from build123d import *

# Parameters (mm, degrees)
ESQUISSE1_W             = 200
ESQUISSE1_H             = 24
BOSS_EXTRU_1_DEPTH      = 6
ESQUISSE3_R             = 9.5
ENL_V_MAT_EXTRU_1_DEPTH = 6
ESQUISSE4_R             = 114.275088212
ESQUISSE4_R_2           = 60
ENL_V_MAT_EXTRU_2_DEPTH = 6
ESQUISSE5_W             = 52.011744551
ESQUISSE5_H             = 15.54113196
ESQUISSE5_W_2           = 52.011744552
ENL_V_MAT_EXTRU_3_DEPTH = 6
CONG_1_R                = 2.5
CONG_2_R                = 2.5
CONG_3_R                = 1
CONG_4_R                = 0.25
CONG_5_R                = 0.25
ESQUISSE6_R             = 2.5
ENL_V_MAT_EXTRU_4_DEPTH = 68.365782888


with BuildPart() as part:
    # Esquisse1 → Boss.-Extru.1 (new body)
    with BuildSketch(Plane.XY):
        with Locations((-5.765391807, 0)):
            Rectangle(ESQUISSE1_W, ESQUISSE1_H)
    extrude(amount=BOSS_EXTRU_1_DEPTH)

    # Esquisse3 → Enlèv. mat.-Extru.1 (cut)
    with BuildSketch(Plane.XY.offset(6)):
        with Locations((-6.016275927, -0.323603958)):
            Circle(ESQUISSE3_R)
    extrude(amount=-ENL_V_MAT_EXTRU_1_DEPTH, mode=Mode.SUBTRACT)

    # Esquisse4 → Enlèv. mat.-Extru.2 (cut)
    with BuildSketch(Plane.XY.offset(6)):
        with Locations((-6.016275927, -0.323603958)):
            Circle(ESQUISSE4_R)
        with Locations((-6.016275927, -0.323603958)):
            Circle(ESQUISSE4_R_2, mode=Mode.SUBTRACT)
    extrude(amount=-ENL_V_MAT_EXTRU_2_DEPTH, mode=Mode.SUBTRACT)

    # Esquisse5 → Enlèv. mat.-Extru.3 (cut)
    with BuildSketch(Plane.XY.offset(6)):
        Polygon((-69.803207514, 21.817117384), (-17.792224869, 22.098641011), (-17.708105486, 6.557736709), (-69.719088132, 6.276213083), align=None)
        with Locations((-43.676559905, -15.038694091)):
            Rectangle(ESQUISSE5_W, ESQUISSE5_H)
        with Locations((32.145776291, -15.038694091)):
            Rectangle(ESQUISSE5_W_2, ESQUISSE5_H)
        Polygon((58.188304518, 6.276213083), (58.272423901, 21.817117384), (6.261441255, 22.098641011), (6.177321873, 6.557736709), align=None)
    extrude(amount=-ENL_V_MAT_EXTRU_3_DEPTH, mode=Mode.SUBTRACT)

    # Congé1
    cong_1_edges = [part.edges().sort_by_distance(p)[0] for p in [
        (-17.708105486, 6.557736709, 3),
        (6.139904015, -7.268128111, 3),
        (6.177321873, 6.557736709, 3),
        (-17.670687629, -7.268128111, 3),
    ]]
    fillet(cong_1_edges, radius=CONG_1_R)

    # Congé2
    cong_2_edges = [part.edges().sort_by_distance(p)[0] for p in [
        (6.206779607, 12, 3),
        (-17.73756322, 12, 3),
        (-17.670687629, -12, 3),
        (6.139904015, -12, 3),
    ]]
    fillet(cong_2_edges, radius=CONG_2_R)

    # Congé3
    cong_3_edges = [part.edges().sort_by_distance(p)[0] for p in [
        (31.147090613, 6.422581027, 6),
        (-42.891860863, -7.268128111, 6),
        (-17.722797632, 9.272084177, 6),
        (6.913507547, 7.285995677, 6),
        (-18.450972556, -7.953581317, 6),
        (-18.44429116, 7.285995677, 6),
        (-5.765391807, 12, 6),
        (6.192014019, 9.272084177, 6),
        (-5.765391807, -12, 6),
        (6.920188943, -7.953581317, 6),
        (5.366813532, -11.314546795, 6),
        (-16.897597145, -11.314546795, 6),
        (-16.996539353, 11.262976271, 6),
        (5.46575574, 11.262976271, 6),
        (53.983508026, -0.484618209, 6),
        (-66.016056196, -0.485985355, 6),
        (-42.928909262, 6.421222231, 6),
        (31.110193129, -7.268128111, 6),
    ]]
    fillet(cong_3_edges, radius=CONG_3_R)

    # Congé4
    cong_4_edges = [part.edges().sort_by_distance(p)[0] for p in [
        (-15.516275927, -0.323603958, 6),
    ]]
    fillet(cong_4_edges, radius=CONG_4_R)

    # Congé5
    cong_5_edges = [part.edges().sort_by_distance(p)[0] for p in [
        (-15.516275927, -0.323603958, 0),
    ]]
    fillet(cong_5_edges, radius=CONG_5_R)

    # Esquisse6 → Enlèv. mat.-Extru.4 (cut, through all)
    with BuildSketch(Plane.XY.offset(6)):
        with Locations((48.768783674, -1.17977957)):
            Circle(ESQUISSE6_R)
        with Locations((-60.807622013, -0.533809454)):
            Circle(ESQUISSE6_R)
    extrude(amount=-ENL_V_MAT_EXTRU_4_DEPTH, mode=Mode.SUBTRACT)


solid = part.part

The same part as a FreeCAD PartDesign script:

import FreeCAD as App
import Part
import Sketcher
from FreeCAD import Vector


def edges_at(feature, points):
    """Names of the edges that pass closest to the given points."""
    edges = feature.Shape.Edges
    near = lambda p: min(range(len(edges)), key=lambda i: edges[i].distToShape(Part.Vertex(*p))[0])
    return sorted({f"Edge{near(p) + 1}" for p in points})

doc = App.newDocument("Part")
body = doc.addObject("PartDesign::Body", "Body")

sketch1 = body.newObject("Sketcher::SketchObject", "Sketch")
sketch1.AttachmentSupport = (doc.getObject("XY_Plane"), [""])
sketch1.MapMode = "FlatFace"
sketch1.addGeometry(Part.LineSegment(Vector(-105.765392, 12, 0), Vector(-105.765392, -12, 0)), False)
sketch1.addGeometry(Part.LineSegment(Vector(-105.765392, -12, 0), Vector(94.234608, -12, 0)), False)
sketch1.addGeometry(Part.LineSegment(Vector(94.234608, -12, 0), Vector(94.234608, 12, 0)), False)
sketch1.addGeometry(Part.LineSegment(Vector(94.234608, 12, 0), Vector(-105.765392, 12, 0)), False)
sketch1.addConstraint(Sketcher.Constraint("Coincident", 0, 2, 1, 1))
sketch1.addConstraint(Sketcher.Constraint("Coincident", 1, 2, 2, 1))
sketch1.addConstraint(Sketcher.Constraint("Coincident", 2, 2, 3, 1))
sketch1.addConstraint(Sketcher.Constraint("Coincident", 3, 2, 0, 1))
sketch1.addConstraint(Sketcher.Constraint("Vertical", 0))
sketch1.addConstraint(Sketcher.Constraint("Horizontal", 1))
sketch1.addConstraint(Sketcher.Constraint("Vertical", 2))
sketch1.addConstraint(Sketcher.Constraint("Horizontal", 3))
sketch1.addConstraint(Sketcher.Constraint("DistanceX", 1, 1, 1, 2, 200.0))
sketch1.addConstraint(Sketcher.Constraint("DistanceY", 0, 2, 0, 1, 24.0))
sketch1.addConstraint(Sketcher.Constraint("DistanceY", 0, 2, -1, 1, 12.0))
sketch1.addConstraint(Sketcher.Constraint("DistanceX", 0, 2, -1, 1, 105.765392))
pad1 = body.newObject("PartDesign::Pad", "Pad")
pad1.Profile = sketch1
pad1.Length = 6

sketch2 = body.newObject("Sketcher::SketchObject", "Sketch001")
sketch2.AttachmentSupport = (doc.getObject("XY_Plane"), [""])
sketch2.MapMode = "FlatFace"
sketch2.AttachmentOffset = App.Placement(Vector(0, 0, 6), App.Rotation())
sketch2.addGeometry(Part.Circle(Vector(-6.016276, -0.323604, 0), Vector(0, 0, 1), 9.5), False)
sketch2.addConstraint(Sketcher.Constraint("Diameter", 0, 19.0))
sketch2.addConstraint(Sketcher.Constraint("DistanceX", 0, 3, -1, 1, 6.016276))
sketch2.addConstraint(Sketcher.Constraint("DistanceY", 0, 3, -1, 1, 0.323604))
pocket1 = body.newObject("PartDesign::Pocket", "Pocket")
pocket1.Profile = sketch2
pocket1.Length = 6

sketch3 = body.newObject("Sketcher::SketchObject", "Sketch002")
sketch3.AttachmentSupport = (doc.getObject("XY_Plane"), [""])
sketch3.MapMode = "FlatFace"
sketch3.AttachmentOffset = App.Placement(Vector(0, 0, 6), App.Rotation())
sketch3.addGeometry(Part.Circle(Vector(-6.016276, -0.323604, 0), Vector(0, 0, 1), 114.275088), False)
sketch3.addGeometry(Part.Circle(Vector(-6.016276, -0.323604, 0), Vector(0, 0, 1), 60), False)
sketch3.addConstraint(Sketcher.Constraint("Coincident", 1, 3, 0, 3))
sketch3.addConstraint(Sketcher.Constraint("Diameter", 1, 120.0))
sketch3.addConstraint(Sketcher.Constraint("Diameter", 0, 228.550176))
sketch3.addConstraint(Sketcher.Constraint("DistanceX", 0, 3, -1, 1, 6.016276))
sketch3.addConstraint(Sketcher.Constraint("DistanceY", 0, 3, -1, 1, 0.323604))
pocket2 = body.newObject("PartDesign::Pocket", "Pocket001")
pocket2.Profile = sketch3
pocket2.Length = 6

sketch4 = body.newObject("Sketcher::SketchObject", "Sketch003")
sketch4.AttachmentSupport = (doc.getObject("XY_Plane"), [""])
sketch4.MapMode = "FlatFace"
sketch4.AttachmentOffset = App.Placement(Vector(0, 0, 6), App.Rotation())
sketch4.addGeometry(Part.LineSegment(Vector(-17.792225, 22.098641, 0), Vector(-69.803208, 21.817117, 0)), False)
sketch4.addGeometry(Part.LineSegment(Vector(-69.803208, 21.817117, 0), Vector(-69.719088, 6.276213, 0)), False)
sketch4.addGeometry(Part.LineSegment(Vector(-69.719088, 6.276213, 0), Vector(-17.708105, 6.557737, 0)), False)
sketch4.addGeometry(Part.LineSegment(Vector(-17.708105, 6.557737, 0), Vector(-17.792225, 22.098641, 0)), False)
sketch4.addGeometry(Part.LineSegment(Vector(-69.682432, -7.268128, 0), Vector(-69.682432, -22.80926, 0)), False)
sketch4.addGeometry(Part.LineSegment(Vector(-69.682432, -22.80926, 0), Vector(-17.670688, -22.80926, 0)), False)
sketch4.addGeometry(Part.LineSegment(Vector(-17.670688, -22.80926, 0), Vector(-17.670688, -7.268128, 0)), False)
sketch4.addGeometry(Part.LineSegment(Vector(-17.670688, -7.268128, 0), Vector(-69.682432, -7.268128, 0)), False)
sketch4.addGeometry(Part.LineSegment(Vector(6.139904, -7.268128, 0), Vector(6.139904, -22.80926, 0)), False)
sketch4.addGeometry(Part.LineSegment(Vector(6.139904, -22.80926, 0), Vector(58.151649, -22.80926, 0)), False)
sketch4.addGeometry(Part.LineSegment(Vector(58.151649, -22.80926, 0), Vector(58.151649, -7.268128, 0)), False)
sketch4.addGeometry(Part.LineSegment(Vector(58.151649, -7.268128, 0), Vector(6.139904, -7.268128, 0)), False)
sketch4.addGeometry(Part.LineSegment(Vector(58.188305, 6.276213, 0), Vector(58.272424, 21.817117, 0)), False)
sketch4.addGeometry(Part.LineSegment(Vector(58.272424, 21.817117, 0), Vector(6.261441, 22.098641, 0)), False)
sketch4.addGeometry(Part.LineSegment(Vector(6.261441, 22.098641, 0), Vector(6.177322, 6.557737, 0)), False)
sketch4.addGeometry(Part.LineSegment(Vector(6.177322, 6.557737, 0), Vector(58.188305, 6.276213, 0)), False)
sketch4.addConstraint(Sketcher.Constraint("Coincident", 0, 2, 1, 1))
sketch4.addConstraint(Sketcher.Constraint("Coincident", 1, 2, 2, 1))
sketch4.addConstraint(Sketcher.Constraint("Coincident", 2, 2, 3, 1))
sketch4.addConstraint(Sketcher.Constraint("Coincident", 3, 2, 0, 1))
sketch4.addConstraint(Sketcher.Constraint("Coincident", 4, 2, 5, 1))
sketch4.addConstraint(Sketcher.Constraint("Coincident", 5, 2, 6, 1))
sketch4.addConstraint(Sketcher.Constraint("Coincident", 6, 2, 7, 1))
sketch4.addConstraint(Sketcher.Constraint("Coincident", 7, 2, 4, 1))
sketch4.addConstraint(Sketcher.Constraint("Coincident", 8, 2, 9, 1))
sketch4.addConstraint(Sketcher.Constraint("Coincident", 9, 2, 10, 1))
sketch4.addConstraint(Sketcher.Constraint("Coincident", 10, 2, 11, 1))
sketch4.addConstraint(Sketcher.Constraint("Coincident", 11, 2, 8, 1))
sketch4.addConstraint(Sketcher.Constraint("Coincident", 12, 2, 13, 1))
sketch4.addConstraint(Sketcher.Constraint("Coincident", 13, 2, 14, 1))
sketch4.addConstraint(Sketcher.Constraint("Coincident", 14, 2, 15, 1))
sketch4.addConstraint(Sketcher.Constraint("Coincident", 15, 2, 12, 1))
sketch4.addConstraint(Sketcher.Constraint("Vertical", 4))
sketch4.addConstraint(Sketcher.Constraint("Horizontal", 5))
sketch4.addConstraint(Sketcher.Constraint("Vertical", 6))
sketch4.addConstraint(Sketcher.Constraint("Horizontal", 7))
sketch4.addConstraint(Sketcher.Constraint("Vertical", 8))
sketch4.addConstraint(Sketcher.Constraint("Horizontal", 9))
sketch4.addConstraint(Sketcher.Constraint("Vertical", 10))
sketch4.addConstraint(Sketcher.Constraint("Horizontal", 11))
sketch4.addConstraint(Sketcher.Constraint("Perpendicular", 0, 1))
sketch4.addConstraint(Sketcher.Constraint("Perpendicular", 1, 2))
sketch4.addConstraint(Sketcher.Constraint("Perpendicular", 2, 3))
sketch4.addConstraint(Sketcher.Constraint("Perpendicular", 12, 13))
sketch4.addConstraint(Sketcher.Constraint("Perpendicular", 13, 14))
sketch4.addConstraint(Sketcher.Constraint("Perpendicular", 14, 15))
sketch4.addConstraint(Sketcher.Constraint("Horizontal", 5, 2, 8, 2))
sketch4.addConstraint(Sketcher.Constraint("Horizontal", 7, 2, 10, 2))
sketch4.addConstraint(Sketcher.Constraint("Horizontal", 0, 2, 12, 2))
sketch4.addConstraint(Sketcher.Constraint("Horizontal", 3, 2, 13, 2))
sketch4.addConstraint(Sketcher.Constraint("Horizontal", 2, 2, 14, 2))
sketch4.addConstraint(Sketcher.Constraint("Equal", 7, 9))
sketch4.addConstraint(Sketcher.Constraint("Equal", 2, 13))
sketch4.addConstraint(Sketcher.Constraint("DistanceY", 4, 2, 4, 1, 15.541132))
sketch4.addConstraint(Sketcher.Constraint("DistanceY", 4, 2, 3, 2, 44.907901))
sketch4.addConstraint(Sketcher.Constraint("DistanceX", 1, 2, 5, 2, 52.048401))
sketch4.addConstraint(Sketcher.Constraint("DistanceX", 11, 2, 15, 2, 52.048401))
sketch4.addConstraint(Sketcher.Constraint("Distance", 1, 15.541132))
sketch4.addConstraint(Sketcher.Constraint("DistanceX", 5, 1, 5, 2, 52.011745))
sketch4.addConstraint(Sketcher.Constraint("DistanceX", 1, 2, -1, 1, 69.719088))
sketch4.addConstraint(Sketcher.Constraint("DistanceY", -1, 1, 3, 2, 22.098641))
sketch4.addConstraint(Sketcher.Constraint("DistanceX", -1, 1, 9, 2, 58.151649))
sketch4.addConstraint(Sketcher.Constraint("DistanceX", -1, 1, 13, 2, 6.261441))
sketch4.addConstraint(Sketcher.Constraint("DistanceX", -1, 1, 14, 2, 6.177322))
pocket3 = body.newObject("PartDesign::Pocket", "Pocket002")
pocket3.Profile = sketch4
pocket3.Length = 6
doc.recompute()

fillet = body.newObject("PartDesign::Fillet", "Fillet")
fillet.Base = (pocket3, edges_at(pocket3, [
    (-17.708, 6.558, 3),
    (6.14, -7.268, 3),
    (6.177, 6.558, 3),
    (-17.671, -7.268, 3),
]))
fillet.Radius = 2.5
doc.recompute()

fillet2 = body.newObject("PartDesign::Fillet", "Fillet001")
fillet2.Base = (fillet, edges_at(fillet, [
    (6.207, 12, 3),
    (-17.738, 12, 3),
    (-17.671, -12, 3),
    (6.14, -12, 3),
]))
fillet2.Radius = 2.5
doc.recompute()

fillet3 = body.newObject("PartDesign::Fillet", "Fillet002")
fillet3.Base = (fillet2, edges_at(fillet2, [
    (31.147, 6.423, 6),
    (-42.892, -7.268, 6),
    (-17.723, 9.272, 6),
    (6.914, 7.286, 6),
    (-18.451, -7.954, 6),
    (-18.444, 7.286, 6),
    (-5.765, 12, 6),
    (6.192, 9.272, 6),
    (-5.765, -12, 6),
    (6.92, -7.954, 6),
    (5.367, -11.315, 6),
    (-16.898, -11.315, 6),
    (-16.997, 11.263, 6),
    (5.466, 11.263, 6),
    (53.984, -0.485, 6),
    (-66.016, -0.486, 6),
    (-42.929, 6.421, 6),
    (31.11, -7.268, 6),
]))
fillet3.Radius = 1
doc.recompute()

fillet4 = body.newObject("PartDesign::Fillet", "Fillet003")
fillet4.Base = (fillet3, edges_at(fillet3, [(-15.516, -0.324, 6)]))
fillet4.Radius = 0.25
doc.recompute()

fillet5 = body.newObject("PartDesign::Fillet", "Fillet004")
fillet5.Base = (fillet4, edges_at(fillet4, [(-15.516, -0.324, 0)]))
fillet5.Radius = 0.25

sketch5 = body.newObject("Sketcher::SketchObject", "Sketch004")
sketch5.AttachmentSupport = (doc.getObject("XY_Plane"), [""])
sketch5.MapMode = "FlatFace"
sketch5.AttachmentOffset = App.Placement(Vector(0, 0, 6), App.Rotation())
sketch5.addGeometry(Part.Circle(Vector(48.768784, -1.17978, 0), Vector(0, 0, 1), 2.5), False)
sketch5.addGeometry(Part.Circle(Vector(-60.807622, -0.533809, 0), Vector(0, 0, 1), 2.5), False)
sketch5.addConstraint(Sketcher.Constraint("Equal", 0, 1))
sketch5.addConstraint(Sketcher.Constraint("Diameter", 0, 5.0))
sketch5.addConstraint(Sketcher.Constraint("DistanceY", 0, 3, -1, 1, 1.17978))
sketch5.addConstraint(Sketcher.Constraint("DistanceY", 1, 3, -1, 1, 0.533809))
sketch5.addConstraint(Sketcher.Constraint("DistanceX", -1, 1, 0, 3, 48.768784))
sketch5.addConstraint(Sketcher.Constraint("DistanceX", 1, 3, -1, 1, 60.807622))
pocket4 = body.newObject("PartDesign::Pocket", "Pocket003")
pocket4.Profile = sketch5
pocket4.Type = "ThroughAll"

doc.recompute()
